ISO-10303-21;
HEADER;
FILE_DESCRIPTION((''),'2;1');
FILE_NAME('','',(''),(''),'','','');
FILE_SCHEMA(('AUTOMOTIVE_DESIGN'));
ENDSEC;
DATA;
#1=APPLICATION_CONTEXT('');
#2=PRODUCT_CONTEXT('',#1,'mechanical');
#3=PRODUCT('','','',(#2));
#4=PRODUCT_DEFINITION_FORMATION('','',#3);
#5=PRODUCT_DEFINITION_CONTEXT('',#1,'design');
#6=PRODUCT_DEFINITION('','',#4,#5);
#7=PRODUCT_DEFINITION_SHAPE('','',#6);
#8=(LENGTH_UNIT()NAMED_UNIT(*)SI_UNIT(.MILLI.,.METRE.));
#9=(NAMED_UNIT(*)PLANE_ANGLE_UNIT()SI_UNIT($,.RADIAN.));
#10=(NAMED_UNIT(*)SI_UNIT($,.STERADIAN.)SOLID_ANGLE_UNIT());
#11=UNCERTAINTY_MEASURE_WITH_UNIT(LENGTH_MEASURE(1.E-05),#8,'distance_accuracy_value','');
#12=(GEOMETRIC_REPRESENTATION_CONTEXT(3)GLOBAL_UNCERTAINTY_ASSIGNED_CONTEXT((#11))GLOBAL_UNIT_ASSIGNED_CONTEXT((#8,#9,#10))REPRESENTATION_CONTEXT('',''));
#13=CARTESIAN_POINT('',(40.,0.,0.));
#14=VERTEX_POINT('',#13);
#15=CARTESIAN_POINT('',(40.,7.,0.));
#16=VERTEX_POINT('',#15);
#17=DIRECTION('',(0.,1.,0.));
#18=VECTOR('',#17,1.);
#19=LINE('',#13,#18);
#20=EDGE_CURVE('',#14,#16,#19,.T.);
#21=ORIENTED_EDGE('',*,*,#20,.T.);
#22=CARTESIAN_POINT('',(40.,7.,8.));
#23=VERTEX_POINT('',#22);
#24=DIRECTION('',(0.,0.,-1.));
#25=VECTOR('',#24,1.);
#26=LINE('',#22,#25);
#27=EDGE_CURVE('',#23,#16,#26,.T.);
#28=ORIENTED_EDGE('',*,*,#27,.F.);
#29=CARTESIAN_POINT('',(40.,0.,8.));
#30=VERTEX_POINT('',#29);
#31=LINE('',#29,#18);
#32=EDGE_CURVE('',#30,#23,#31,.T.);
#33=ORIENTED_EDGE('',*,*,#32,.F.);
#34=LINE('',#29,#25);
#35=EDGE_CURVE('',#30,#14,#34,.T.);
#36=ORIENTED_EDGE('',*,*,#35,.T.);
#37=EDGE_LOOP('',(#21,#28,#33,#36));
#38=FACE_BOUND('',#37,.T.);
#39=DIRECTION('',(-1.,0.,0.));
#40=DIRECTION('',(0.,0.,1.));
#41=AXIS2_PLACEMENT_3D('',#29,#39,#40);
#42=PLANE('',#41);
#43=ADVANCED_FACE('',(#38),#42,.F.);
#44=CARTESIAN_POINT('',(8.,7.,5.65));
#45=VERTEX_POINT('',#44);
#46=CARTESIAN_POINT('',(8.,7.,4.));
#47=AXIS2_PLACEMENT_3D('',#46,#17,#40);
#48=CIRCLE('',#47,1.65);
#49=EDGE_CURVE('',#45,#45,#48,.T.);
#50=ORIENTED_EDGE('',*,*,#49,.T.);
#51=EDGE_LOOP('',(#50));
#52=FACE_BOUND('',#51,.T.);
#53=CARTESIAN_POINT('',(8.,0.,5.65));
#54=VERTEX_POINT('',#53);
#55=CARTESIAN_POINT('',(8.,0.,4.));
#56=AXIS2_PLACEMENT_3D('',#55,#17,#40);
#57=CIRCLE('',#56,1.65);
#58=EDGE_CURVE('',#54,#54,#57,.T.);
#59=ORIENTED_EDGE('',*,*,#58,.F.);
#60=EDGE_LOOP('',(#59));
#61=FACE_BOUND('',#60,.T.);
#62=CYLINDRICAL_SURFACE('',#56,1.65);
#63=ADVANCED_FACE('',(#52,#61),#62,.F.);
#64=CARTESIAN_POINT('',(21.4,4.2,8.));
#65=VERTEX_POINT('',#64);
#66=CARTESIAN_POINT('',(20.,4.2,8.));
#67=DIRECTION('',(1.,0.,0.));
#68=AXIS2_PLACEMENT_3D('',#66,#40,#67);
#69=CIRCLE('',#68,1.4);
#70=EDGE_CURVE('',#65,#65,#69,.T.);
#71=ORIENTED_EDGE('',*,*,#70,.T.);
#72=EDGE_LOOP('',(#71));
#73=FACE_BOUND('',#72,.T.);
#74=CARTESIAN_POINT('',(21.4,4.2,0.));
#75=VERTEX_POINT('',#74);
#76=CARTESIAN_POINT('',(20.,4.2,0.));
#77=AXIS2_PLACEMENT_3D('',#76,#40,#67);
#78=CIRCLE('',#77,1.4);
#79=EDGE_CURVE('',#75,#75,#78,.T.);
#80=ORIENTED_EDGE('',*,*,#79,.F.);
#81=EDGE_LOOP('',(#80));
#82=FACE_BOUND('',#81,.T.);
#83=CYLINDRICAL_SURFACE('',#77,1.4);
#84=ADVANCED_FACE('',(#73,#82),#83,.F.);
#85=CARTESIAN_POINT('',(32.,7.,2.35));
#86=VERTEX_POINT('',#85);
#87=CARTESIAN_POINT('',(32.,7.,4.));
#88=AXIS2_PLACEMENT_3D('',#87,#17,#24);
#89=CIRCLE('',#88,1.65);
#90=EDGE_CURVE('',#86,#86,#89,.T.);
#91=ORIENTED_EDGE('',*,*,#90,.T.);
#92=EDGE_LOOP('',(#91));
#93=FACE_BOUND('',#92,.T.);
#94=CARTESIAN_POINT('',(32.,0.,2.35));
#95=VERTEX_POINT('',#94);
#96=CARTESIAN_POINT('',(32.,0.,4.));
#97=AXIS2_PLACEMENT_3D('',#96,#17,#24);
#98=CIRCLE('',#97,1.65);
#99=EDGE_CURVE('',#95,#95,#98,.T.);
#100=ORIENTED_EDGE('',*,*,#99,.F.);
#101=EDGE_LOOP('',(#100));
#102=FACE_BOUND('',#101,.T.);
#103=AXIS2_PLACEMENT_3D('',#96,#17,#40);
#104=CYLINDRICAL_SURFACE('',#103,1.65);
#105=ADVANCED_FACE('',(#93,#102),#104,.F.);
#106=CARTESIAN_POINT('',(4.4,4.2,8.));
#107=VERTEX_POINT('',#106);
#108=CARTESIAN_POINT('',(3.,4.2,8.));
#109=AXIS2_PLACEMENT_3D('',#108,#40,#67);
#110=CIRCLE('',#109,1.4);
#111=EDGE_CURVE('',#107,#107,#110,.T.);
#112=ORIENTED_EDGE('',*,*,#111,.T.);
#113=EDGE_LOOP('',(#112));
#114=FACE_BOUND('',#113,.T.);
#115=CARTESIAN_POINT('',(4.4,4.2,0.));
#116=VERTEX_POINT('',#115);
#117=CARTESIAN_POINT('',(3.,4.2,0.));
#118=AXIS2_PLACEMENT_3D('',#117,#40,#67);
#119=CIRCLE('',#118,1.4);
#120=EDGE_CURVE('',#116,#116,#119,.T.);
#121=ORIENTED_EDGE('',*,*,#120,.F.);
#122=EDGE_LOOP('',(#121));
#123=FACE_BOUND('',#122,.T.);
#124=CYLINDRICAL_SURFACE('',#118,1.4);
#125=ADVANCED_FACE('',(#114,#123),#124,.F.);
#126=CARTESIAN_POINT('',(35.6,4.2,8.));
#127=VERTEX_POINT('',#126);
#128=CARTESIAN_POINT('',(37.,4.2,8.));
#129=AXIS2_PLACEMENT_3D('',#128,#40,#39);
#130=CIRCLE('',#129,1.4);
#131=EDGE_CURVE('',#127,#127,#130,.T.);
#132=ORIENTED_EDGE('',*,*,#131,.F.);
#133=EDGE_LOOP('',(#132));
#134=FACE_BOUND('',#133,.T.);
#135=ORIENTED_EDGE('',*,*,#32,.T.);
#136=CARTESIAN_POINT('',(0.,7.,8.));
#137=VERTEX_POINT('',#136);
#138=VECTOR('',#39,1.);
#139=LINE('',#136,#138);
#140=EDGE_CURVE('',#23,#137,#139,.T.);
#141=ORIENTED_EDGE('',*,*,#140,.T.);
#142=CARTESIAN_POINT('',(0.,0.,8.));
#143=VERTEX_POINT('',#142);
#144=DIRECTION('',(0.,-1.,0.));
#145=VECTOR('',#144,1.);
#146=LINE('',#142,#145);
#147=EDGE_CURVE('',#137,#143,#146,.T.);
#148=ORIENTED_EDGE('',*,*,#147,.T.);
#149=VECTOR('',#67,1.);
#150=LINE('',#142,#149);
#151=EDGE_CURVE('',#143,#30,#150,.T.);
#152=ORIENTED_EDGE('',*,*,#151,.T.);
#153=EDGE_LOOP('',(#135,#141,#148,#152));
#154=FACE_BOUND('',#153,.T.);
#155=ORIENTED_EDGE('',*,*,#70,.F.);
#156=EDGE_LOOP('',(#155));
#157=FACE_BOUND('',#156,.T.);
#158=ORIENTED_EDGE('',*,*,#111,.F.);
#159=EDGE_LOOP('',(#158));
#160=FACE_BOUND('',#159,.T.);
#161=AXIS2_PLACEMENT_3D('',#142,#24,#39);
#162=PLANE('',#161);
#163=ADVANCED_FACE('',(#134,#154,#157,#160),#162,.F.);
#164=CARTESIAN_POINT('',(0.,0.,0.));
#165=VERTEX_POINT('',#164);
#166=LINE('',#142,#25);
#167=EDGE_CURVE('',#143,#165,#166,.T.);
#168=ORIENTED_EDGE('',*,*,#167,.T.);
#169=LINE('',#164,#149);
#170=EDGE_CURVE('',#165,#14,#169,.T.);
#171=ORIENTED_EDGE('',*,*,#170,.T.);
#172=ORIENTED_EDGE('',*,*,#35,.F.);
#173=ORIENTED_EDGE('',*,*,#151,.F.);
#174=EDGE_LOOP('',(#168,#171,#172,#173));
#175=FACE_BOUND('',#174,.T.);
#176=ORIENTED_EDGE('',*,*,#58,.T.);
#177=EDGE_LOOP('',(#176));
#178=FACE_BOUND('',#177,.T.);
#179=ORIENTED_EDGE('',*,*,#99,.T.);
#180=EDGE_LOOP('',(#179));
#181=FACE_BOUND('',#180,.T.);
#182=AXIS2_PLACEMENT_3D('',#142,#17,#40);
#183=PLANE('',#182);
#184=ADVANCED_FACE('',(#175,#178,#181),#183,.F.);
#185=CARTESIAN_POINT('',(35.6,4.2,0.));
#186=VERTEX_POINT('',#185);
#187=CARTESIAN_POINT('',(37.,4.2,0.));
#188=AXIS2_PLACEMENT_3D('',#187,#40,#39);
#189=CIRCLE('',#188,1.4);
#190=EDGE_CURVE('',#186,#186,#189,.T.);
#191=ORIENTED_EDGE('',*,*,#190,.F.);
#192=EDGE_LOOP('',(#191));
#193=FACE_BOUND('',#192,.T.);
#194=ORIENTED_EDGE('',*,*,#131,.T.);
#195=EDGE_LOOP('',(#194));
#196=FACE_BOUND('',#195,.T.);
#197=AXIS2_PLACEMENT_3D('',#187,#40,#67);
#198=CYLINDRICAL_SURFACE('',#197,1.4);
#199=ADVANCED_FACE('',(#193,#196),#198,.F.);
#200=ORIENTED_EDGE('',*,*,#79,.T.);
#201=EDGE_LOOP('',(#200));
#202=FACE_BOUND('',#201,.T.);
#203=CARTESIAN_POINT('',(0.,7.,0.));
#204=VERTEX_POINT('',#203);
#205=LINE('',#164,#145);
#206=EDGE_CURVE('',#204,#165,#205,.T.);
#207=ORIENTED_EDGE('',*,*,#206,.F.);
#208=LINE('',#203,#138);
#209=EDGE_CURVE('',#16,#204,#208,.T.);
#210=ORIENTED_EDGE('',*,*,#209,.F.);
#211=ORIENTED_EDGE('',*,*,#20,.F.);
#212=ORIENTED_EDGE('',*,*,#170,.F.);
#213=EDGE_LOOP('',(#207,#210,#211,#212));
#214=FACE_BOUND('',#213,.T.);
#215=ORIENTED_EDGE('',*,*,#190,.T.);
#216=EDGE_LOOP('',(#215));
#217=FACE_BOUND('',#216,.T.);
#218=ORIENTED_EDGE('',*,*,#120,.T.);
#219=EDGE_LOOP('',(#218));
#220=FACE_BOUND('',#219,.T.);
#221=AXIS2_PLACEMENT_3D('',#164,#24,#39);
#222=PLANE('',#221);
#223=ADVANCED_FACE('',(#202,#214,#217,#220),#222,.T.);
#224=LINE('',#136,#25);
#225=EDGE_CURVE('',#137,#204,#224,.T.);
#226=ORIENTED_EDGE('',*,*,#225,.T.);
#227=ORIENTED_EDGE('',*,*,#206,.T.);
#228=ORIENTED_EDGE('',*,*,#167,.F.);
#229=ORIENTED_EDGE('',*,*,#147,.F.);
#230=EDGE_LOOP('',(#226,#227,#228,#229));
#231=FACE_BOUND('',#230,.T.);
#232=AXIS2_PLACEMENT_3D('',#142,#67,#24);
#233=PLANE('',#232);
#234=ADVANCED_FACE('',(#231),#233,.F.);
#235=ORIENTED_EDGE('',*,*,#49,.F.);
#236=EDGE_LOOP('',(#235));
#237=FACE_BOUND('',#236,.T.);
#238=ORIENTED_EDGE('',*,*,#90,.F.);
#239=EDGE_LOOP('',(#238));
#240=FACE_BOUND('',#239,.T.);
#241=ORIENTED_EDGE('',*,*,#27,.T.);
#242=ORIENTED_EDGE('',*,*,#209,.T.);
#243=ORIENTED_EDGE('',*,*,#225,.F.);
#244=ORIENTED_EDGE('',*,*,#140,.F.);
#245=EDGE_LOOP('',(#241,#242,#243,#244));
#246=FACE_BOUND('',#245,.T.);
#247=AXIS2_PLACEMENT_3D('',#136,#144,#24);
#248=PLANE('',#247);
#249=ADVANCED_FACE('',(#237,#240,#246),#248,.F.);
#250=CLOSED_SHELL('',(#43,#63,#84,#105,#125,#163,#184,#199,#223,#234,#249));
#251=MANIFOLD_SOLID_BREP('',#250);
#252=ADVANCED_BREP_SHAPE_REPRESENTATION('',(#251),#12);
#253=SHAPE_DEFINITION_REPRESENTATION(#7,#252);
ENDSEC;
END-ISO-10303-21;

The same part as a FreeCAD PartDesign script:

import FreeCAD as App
import Part
import Sketcher
from FreeCAD import Vector


def add_polygon(sketch, points):
    """Adds a closed chain of lines whose ends are joined by coincident constraints."""
    first, n = sketch.GeometryCount, len(points)
    for a, b in zip(points, points[1:] + points[:1]):
        sketch.addGeometry(Part.LineSegment(App.Vector(*a, 0), App.Vector(*b, 0)), False)
    for i in range(n):
        sketch.addConstraint(Sketcher.Constraint("Coincident", first + i, 2, first + (i + 1) % n, 1))

doc = App.newDocument("Part")
body = doc.addObject("PartDesign::Body", "Body")

# Sketch on XY plane
sketch1 = body.newObject("Sketcher::SketchObject", "Sketch")
sketch1.AttachmentSupport = (doc.getObject("XY_Plane"), [""])
sketch1.MapMode = "FlatFace"
add_polygon(sketch1, [(0, 7), (0, 0), (40, 0), (40, 7)])  # lines 0-3
sketch1.addConstraint([
    Sketcher.Constraint("Vertical", 0),
    Sketcher.Constraint("Horizontal", 1),
    Sketcher.Constraint("Vertical", 2),
    Sketcher.Constraint("Horizontal", 3),
    Sketcher.Constraint("Coincident", 0, 2, -1, 1),
    Sketcher.Constraint("DistanceX", 1, 1, 1, 2, 40.0),
    Sketcher.Constraint("DistanceY", 0, 2, 0, 1, 7.0),
])
pad1 = body.newObject("PartDesign::Pad", "Pad")
pad1.Profile = sketch1
pad1.Length = 8

# Sketch on XY plane
sketch2 = body.newObject("Sketcher::SketchObject", "Sketch001")
sketch2.AttachmentSupport = (doc.getObject("XY_Plane"), [""])
sketch2.MapMode = "FlatFace"
sketch2.AttachmentOffset = App.Placement(Vector(0, 0, 8), App.Rotation())
sketch2.addGeometry([
    Part.Circle(Vector(20, 4.2, 0), Vector(0, 0, 1), 1.4),
    Part.Circle(Vector(3, 4.2, 0), Vector(0, 0, 1), 1.4),
    Part.Circle(Vector(37, 4.2, 0), Vector(0, 0, 1), 1.4),
], False)
sketch2.addConstraint([
    Sketcher.Constraint("Equal", 0, 1),
    Sketcher.Constraint("Equal", 1, 2),
    Sketcher.Constraint("Horizontal", 0, 3, 1, 3),
    Sketcher.Constraint("Horizontal", 1, 3, 2, 3),
    Sketcher.Constraint("Diameter", 0, 2.8),
    Sketcher.Constraint("DistanceX", -1, 1, 0, 3, 20.0),
    Sketcher.Constraint("DistanceX", -1, 1, 1, 3, 3.0),
    Sketcher.Constraint("DistanceX", -1, 1, 2, 3, 37.0),
    Sketcher.Constraint("DistanceY", -1, 1, 0, 3, 4.2),
])
pocket1 = body.newObject("PartDesign::Pocket", "Pocket")
pocket1.Profile = sketch2
pocket1.Type = "ThroughAll"

# Sketch on XZ plane
sketch3 = body.newObject("Sketcher::SketchObject", "Sketch002")
sketch3.AttachmentSupport = (doc.getObject("XZ_Plane"), [""])
sketch3.MapMode = "FlatFace"
sketch3.AttachmentOffset = App.Placement(Vector(0, 0, -7), App.Rotation())
sketch3.addGeometry([
    Part.Circle(Vector(8, 4, 0), Vector(0, 0, 1), 1.65),
    Part.Circle(Vector(32, 4, 0), Vector(0, 0, 1), 1.65),
], False)
sketch3.addConstraint([
    Sketcher.Constraint("Equal", 0, 1),
    Sketcher.Constraint("Horizontal", 0, 3, 1, 3),
    Sketcher.Constraint("Diameter", 0, 3.3),
    Sketcher.Constraint("DistanceX", -1, 1, 0, 3, 8.0),
    Sketcher.Constraint("DistanceY", -1, 1, 0, 3, 4.0),
    Sketcher.Constraint("DistanceX", -1, 1, 1, 3, 32.0),
])
pocket2 = body.newObject("PartDesign::Pocket", "Pocket001")
pocket2.Profile = sketch3
pocket2.Type = "ThroughAll"
pocket2.Reversed = True

doc.recompute()
